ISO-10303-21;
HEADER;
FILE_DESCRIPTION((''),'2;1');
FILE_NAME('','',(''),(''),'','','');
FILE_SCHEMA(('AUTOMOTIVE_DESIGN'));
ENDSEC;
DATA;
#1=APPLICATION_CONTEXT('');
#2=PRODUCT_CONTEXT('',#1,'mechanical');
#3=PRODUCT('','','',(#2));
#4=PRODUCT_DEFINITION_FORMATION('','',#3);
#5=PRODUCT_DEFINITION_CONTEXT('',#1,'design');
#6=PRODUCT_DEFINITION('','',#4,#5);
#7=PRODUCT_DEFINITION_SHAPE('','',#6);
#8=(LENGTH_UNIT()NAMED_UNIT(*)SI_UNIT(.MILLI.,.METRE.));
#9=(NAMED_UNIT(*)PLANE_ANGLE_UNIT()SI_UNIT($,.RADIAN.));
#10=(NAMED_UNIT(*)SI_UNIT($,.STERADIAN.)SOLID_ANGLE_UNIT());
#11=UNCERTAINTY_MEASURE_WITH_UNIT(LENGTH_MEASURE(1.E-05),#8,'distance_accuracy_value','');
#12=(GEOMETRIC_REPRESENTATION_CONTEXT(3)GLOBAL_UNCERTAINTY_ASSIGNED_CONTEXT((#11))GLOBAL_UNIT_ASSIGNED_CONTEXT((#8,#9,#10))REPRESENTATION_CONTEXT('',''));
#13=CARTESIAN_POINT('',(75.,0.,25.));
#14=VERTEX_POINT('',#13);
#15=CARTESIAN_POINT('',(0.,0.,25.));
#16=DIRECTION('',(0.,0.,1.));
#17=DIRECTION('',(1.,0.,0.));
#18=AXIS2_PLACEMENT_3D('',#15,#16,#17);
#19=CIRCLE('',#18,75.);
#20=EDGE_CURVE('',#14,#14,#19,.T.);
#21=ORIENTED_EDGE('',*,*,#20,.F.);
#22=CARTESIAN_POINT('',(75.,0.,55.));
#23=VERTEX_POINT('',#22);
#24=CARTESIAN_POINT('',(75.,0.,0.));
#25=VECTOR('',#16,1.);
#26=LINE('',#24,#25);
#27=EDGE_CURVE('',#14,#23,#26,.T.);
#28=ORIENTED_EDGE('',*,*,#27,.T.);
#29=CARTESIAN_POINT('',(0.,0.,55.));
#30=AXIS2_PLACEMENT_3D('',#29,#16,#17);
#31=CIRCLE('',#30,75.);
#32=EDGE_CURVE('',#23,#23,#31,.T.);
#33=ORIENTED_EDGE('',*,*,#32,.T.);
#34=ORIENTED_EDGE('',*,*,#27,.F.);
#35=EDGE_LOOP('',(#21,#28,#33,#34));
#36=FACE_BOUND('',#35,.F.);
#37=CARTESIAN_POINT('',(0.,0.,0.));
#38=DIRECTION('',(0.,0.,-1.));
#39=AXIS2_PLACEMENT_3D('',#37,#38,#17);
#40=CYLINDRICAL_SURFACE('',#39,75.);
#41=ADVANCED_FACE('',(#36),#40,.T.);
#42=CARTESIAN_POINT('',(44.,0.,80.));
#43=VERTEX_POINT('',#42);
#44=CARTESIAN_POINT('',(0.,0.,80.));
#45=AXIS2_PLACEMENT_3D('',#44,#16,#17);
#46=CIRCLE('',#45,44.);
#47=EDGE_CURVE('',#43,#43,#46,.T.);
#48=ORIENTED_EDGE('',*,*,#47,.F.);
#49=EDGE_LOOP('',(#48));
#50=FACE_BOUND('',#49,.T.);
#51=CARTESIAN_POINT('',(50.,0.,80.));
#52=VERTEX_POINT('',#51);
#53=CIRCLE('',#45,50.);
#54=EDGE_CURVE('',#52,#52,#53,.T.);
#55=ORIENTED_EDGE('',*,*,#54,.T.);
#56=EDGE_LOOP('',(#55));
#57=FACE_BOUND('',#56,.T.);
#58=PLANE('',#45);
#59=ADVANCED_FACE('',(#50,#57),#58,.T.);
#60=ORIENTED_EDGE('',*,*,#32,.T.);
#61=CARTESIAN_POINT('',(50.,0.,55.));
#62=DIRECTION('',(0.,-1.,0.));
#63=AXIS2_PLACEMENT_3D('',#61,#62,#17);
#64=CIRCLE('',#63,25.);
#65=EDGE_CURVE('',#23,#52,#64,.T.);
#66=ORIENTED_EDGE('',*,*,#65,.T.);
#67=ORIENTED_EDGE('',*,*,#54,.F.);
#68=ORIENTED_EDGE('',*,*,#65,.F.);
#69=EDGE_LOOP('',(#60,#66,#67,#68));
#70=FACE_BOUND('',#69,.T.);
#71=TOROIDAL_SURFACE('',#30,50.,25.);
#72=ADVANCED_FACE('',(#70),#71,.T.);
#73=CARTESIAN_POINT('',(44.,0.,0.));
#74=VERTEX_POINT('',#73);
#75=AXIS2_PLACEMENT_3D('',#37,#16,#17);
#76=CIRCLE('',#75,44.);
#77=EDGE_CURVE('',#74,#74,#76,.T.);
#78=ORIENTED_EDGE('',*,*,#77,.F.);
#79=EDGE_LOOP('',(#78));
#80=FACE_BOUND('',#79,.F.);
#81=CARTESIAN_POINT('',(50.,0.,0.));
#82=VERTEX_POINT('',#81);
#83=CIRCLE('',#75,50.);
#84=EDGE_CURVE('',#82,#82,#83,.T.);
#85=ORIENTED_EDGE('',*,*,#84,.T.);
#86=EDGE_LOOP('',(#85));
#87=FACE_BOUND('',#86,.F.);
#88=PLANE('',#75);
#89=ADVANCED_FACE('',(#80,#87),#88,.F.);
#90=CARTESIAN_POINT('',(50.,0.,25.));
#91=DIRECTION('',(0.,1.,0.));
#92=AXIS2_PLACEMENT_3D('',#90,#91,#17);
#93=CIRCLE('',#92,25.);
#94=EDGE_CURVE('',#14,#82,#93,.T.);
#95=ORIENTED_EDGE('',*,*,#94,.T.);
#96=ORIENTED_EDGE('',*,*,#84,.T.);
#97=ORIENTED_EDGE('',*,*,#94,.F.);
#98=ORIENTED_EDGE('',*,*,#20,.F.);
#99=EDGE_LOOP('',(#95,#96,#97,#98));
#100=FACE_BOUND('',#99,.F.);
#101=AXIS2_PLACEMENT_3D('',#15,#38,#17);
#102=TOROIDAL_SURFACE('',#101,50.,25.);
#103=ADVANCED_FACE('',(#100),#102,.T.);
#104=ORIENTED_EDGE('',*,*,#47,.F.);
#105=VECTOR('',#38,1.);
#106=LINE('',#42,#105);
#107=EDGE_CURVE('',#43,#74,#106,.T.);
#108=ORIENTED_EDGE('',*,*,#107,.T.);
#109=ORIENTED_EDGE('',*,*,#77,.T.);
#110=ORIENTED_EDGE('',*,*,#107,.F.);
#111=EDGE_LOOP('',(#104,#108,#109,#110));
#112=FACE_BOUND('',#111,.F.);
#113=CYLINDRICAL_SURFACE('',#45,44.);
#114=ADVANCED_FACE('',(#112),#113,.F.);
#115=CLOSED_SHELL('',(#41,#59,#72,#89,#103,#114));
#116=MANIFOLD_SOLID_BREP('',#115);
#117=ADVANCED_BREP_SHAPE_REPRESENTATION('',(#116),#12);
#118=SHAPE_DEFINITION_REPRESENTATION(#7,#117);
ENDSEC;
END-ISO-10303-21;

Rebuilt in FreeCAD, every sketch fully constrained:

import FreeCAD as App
import Part
import Sketcher

doc = App.newDocument("Part")
params = doc.addObject("Spreadsheet::Sheet", "Params")
for row, (alias, value) in enumerate([
    ("sketch1_diameter", "150 mm"),
    ("pad1_length", "80 mm"),
    ("fillet_radius", "25 mm"),
    ("sketch2_diameter", "88 mm"),
    ("pocket1_length", "177.9 mm"),
], start=1):
    params.set(f"A{row}", alias)
    params.set(f"B{row}", "=" + value)
    params.setAlias(f"B{row}", alias)

body = doc.addObject("PartDesign::Body", "Body")

# Sketch on XY plane
sketch1 = body.newObject("Sketcher::SketchObject", "Sketch")
sketch1.AttachmentSupport = (doc.getObject("XY_Plane"), [""])
sketch1.MapMode = "FlatFace"
sketch1.addGeometry(Part.Circle(App.Vector(0, 0, 0), App.Vector(0, 0, 1), 75), False)
sketch1.addConstraint([
    Sketcher.Constraint("Coincident", 0, 3, -1, 1),
    Sketcher.Constraint("Diameter", 0, 150.0),
])
sketch1.setExpression("Constraints[1]", "Params.sketch1_diameter")
pad1 = body.newObject("PartDesign::Pad", "Pad")
pad1.Profile = sketch1
pad1.setExpression("Length", "Params.pad1_length")
doc.recompute()

fillet = body.newObject("PartDesign::Fillet", "Fillet")
fillet.Base = (pad1, ["Edge1"])
fillet.UseAllEdges = True
fillet.setExpression("Radius", "Params.fillet_radius")

# Sketch on XY plane
sketch2 = body.newObject("Sketcher::SketchObject", "Sketch001")
sketch2.AttachmentSupport = (doc.getObject("XY_Plane"), [""])
sketch2.MapMode = "FlatFace"
sketch2.AttachmentOffset = App.Placement(App.Vector(0, 0, 80), App.Rotation())
sketch2.addGeometry(Part.Circle(App.Vector(0, 0, 0), App.Vector(0, 0, 1), 44), False)
sketch2.addConstraint([
    Sketcher.Constraint("Coincident", 0, 3, -1, 1),
    Sketcher.Constraint("Diameter", 0, 88.0),
])
sketch2.setExpression("Constraints[1]", "Params.sketch2_diameter")
pocket1 = body.newObject("PartDesign::Pocket", "Pocket")
pocket1.Profile = sketch2
pocket1.setExpression("Length", "Params.pocket1_length")

doc.recompute()
